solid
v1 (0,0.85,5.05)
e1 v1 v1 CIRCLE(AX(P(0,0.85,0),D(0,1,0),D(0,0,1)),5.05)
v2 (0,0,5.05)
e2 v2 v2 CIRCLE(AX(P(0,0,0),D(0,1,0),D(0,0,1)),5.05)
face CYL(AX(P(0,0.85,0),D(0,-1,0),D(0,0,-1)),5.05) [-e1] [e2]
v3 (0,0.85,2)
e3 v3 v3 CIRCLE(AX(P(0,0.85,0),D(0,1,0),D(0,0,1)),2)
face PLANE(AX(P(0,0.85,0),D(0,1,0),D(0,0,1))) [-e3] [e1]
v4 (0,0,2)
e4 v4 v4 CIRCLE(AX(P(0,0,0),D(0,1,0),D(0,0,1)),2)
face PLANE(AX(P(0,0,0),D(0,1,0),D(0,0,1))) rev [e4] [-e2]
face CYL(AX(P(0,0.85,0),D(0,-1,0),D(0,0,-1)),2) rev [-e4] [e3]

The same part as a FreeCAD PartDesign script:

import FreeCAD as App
import Part
import Sketcher

doc = App.newDocument("Part")
params = doc.addObject("Spreadsheet::Sheet", "Params")
for row, (alias, value) in enumerate([
    ("sketch1_diameter", "4 mm"),
    ("sketch1_diameter2", "10.1 mm"),
    ("pad1_length", "0.85 mm"),
], start=1):
    params.set(f"A{row}", alias)
    params.set(f"B{row}", "=" + value)
    params.setAlias(f"B{row}", alias)

body = doc.addObject("PartDesign::Body", "Body")

sketch1 = doc.addObject("Sketcher::SketchObject", "Sketch")
body.addObject(sketch1)
sketch1.AttachmentSupport = (doc.XZ_Plane, [""])
sketch1.MapMode = "FlatFace"
sketch1.addGeometry([
    Part.Circle(App.Vector(0, 0, 0), App.Vector(0, 0, 1), 5.05),
    Part.Circle(App.Vector(0, 0, 0), App.Vector(0, 0, 1), 2),
], False)
sketch1.addConstraint([
    Sketcher.Constraint("Coincident", 0, 3, -1, 1),
    Sketcher.Constraint("Coincident", 1, 3, -1, 1),
    Sketcher.Constraint("Diameter", 1, 4.0),
    Sketcher.Constraint("Diameter", 0, 10.1),
])
sketch1.setExpression("Constraints[2]", "Params.sketch1_diameter")
sketch1.setExpression("Constraints[3]", "Params.sketch1_diameter2")
pad1 = doc.addObject("PartDesign::Pad", "Pad")
body.addObject(pad1)
pad1.Profile = sketch1
pad1.setExpression("Length", "Params.pad1_length")
pad1.Reversed = True

doc.recompute()
